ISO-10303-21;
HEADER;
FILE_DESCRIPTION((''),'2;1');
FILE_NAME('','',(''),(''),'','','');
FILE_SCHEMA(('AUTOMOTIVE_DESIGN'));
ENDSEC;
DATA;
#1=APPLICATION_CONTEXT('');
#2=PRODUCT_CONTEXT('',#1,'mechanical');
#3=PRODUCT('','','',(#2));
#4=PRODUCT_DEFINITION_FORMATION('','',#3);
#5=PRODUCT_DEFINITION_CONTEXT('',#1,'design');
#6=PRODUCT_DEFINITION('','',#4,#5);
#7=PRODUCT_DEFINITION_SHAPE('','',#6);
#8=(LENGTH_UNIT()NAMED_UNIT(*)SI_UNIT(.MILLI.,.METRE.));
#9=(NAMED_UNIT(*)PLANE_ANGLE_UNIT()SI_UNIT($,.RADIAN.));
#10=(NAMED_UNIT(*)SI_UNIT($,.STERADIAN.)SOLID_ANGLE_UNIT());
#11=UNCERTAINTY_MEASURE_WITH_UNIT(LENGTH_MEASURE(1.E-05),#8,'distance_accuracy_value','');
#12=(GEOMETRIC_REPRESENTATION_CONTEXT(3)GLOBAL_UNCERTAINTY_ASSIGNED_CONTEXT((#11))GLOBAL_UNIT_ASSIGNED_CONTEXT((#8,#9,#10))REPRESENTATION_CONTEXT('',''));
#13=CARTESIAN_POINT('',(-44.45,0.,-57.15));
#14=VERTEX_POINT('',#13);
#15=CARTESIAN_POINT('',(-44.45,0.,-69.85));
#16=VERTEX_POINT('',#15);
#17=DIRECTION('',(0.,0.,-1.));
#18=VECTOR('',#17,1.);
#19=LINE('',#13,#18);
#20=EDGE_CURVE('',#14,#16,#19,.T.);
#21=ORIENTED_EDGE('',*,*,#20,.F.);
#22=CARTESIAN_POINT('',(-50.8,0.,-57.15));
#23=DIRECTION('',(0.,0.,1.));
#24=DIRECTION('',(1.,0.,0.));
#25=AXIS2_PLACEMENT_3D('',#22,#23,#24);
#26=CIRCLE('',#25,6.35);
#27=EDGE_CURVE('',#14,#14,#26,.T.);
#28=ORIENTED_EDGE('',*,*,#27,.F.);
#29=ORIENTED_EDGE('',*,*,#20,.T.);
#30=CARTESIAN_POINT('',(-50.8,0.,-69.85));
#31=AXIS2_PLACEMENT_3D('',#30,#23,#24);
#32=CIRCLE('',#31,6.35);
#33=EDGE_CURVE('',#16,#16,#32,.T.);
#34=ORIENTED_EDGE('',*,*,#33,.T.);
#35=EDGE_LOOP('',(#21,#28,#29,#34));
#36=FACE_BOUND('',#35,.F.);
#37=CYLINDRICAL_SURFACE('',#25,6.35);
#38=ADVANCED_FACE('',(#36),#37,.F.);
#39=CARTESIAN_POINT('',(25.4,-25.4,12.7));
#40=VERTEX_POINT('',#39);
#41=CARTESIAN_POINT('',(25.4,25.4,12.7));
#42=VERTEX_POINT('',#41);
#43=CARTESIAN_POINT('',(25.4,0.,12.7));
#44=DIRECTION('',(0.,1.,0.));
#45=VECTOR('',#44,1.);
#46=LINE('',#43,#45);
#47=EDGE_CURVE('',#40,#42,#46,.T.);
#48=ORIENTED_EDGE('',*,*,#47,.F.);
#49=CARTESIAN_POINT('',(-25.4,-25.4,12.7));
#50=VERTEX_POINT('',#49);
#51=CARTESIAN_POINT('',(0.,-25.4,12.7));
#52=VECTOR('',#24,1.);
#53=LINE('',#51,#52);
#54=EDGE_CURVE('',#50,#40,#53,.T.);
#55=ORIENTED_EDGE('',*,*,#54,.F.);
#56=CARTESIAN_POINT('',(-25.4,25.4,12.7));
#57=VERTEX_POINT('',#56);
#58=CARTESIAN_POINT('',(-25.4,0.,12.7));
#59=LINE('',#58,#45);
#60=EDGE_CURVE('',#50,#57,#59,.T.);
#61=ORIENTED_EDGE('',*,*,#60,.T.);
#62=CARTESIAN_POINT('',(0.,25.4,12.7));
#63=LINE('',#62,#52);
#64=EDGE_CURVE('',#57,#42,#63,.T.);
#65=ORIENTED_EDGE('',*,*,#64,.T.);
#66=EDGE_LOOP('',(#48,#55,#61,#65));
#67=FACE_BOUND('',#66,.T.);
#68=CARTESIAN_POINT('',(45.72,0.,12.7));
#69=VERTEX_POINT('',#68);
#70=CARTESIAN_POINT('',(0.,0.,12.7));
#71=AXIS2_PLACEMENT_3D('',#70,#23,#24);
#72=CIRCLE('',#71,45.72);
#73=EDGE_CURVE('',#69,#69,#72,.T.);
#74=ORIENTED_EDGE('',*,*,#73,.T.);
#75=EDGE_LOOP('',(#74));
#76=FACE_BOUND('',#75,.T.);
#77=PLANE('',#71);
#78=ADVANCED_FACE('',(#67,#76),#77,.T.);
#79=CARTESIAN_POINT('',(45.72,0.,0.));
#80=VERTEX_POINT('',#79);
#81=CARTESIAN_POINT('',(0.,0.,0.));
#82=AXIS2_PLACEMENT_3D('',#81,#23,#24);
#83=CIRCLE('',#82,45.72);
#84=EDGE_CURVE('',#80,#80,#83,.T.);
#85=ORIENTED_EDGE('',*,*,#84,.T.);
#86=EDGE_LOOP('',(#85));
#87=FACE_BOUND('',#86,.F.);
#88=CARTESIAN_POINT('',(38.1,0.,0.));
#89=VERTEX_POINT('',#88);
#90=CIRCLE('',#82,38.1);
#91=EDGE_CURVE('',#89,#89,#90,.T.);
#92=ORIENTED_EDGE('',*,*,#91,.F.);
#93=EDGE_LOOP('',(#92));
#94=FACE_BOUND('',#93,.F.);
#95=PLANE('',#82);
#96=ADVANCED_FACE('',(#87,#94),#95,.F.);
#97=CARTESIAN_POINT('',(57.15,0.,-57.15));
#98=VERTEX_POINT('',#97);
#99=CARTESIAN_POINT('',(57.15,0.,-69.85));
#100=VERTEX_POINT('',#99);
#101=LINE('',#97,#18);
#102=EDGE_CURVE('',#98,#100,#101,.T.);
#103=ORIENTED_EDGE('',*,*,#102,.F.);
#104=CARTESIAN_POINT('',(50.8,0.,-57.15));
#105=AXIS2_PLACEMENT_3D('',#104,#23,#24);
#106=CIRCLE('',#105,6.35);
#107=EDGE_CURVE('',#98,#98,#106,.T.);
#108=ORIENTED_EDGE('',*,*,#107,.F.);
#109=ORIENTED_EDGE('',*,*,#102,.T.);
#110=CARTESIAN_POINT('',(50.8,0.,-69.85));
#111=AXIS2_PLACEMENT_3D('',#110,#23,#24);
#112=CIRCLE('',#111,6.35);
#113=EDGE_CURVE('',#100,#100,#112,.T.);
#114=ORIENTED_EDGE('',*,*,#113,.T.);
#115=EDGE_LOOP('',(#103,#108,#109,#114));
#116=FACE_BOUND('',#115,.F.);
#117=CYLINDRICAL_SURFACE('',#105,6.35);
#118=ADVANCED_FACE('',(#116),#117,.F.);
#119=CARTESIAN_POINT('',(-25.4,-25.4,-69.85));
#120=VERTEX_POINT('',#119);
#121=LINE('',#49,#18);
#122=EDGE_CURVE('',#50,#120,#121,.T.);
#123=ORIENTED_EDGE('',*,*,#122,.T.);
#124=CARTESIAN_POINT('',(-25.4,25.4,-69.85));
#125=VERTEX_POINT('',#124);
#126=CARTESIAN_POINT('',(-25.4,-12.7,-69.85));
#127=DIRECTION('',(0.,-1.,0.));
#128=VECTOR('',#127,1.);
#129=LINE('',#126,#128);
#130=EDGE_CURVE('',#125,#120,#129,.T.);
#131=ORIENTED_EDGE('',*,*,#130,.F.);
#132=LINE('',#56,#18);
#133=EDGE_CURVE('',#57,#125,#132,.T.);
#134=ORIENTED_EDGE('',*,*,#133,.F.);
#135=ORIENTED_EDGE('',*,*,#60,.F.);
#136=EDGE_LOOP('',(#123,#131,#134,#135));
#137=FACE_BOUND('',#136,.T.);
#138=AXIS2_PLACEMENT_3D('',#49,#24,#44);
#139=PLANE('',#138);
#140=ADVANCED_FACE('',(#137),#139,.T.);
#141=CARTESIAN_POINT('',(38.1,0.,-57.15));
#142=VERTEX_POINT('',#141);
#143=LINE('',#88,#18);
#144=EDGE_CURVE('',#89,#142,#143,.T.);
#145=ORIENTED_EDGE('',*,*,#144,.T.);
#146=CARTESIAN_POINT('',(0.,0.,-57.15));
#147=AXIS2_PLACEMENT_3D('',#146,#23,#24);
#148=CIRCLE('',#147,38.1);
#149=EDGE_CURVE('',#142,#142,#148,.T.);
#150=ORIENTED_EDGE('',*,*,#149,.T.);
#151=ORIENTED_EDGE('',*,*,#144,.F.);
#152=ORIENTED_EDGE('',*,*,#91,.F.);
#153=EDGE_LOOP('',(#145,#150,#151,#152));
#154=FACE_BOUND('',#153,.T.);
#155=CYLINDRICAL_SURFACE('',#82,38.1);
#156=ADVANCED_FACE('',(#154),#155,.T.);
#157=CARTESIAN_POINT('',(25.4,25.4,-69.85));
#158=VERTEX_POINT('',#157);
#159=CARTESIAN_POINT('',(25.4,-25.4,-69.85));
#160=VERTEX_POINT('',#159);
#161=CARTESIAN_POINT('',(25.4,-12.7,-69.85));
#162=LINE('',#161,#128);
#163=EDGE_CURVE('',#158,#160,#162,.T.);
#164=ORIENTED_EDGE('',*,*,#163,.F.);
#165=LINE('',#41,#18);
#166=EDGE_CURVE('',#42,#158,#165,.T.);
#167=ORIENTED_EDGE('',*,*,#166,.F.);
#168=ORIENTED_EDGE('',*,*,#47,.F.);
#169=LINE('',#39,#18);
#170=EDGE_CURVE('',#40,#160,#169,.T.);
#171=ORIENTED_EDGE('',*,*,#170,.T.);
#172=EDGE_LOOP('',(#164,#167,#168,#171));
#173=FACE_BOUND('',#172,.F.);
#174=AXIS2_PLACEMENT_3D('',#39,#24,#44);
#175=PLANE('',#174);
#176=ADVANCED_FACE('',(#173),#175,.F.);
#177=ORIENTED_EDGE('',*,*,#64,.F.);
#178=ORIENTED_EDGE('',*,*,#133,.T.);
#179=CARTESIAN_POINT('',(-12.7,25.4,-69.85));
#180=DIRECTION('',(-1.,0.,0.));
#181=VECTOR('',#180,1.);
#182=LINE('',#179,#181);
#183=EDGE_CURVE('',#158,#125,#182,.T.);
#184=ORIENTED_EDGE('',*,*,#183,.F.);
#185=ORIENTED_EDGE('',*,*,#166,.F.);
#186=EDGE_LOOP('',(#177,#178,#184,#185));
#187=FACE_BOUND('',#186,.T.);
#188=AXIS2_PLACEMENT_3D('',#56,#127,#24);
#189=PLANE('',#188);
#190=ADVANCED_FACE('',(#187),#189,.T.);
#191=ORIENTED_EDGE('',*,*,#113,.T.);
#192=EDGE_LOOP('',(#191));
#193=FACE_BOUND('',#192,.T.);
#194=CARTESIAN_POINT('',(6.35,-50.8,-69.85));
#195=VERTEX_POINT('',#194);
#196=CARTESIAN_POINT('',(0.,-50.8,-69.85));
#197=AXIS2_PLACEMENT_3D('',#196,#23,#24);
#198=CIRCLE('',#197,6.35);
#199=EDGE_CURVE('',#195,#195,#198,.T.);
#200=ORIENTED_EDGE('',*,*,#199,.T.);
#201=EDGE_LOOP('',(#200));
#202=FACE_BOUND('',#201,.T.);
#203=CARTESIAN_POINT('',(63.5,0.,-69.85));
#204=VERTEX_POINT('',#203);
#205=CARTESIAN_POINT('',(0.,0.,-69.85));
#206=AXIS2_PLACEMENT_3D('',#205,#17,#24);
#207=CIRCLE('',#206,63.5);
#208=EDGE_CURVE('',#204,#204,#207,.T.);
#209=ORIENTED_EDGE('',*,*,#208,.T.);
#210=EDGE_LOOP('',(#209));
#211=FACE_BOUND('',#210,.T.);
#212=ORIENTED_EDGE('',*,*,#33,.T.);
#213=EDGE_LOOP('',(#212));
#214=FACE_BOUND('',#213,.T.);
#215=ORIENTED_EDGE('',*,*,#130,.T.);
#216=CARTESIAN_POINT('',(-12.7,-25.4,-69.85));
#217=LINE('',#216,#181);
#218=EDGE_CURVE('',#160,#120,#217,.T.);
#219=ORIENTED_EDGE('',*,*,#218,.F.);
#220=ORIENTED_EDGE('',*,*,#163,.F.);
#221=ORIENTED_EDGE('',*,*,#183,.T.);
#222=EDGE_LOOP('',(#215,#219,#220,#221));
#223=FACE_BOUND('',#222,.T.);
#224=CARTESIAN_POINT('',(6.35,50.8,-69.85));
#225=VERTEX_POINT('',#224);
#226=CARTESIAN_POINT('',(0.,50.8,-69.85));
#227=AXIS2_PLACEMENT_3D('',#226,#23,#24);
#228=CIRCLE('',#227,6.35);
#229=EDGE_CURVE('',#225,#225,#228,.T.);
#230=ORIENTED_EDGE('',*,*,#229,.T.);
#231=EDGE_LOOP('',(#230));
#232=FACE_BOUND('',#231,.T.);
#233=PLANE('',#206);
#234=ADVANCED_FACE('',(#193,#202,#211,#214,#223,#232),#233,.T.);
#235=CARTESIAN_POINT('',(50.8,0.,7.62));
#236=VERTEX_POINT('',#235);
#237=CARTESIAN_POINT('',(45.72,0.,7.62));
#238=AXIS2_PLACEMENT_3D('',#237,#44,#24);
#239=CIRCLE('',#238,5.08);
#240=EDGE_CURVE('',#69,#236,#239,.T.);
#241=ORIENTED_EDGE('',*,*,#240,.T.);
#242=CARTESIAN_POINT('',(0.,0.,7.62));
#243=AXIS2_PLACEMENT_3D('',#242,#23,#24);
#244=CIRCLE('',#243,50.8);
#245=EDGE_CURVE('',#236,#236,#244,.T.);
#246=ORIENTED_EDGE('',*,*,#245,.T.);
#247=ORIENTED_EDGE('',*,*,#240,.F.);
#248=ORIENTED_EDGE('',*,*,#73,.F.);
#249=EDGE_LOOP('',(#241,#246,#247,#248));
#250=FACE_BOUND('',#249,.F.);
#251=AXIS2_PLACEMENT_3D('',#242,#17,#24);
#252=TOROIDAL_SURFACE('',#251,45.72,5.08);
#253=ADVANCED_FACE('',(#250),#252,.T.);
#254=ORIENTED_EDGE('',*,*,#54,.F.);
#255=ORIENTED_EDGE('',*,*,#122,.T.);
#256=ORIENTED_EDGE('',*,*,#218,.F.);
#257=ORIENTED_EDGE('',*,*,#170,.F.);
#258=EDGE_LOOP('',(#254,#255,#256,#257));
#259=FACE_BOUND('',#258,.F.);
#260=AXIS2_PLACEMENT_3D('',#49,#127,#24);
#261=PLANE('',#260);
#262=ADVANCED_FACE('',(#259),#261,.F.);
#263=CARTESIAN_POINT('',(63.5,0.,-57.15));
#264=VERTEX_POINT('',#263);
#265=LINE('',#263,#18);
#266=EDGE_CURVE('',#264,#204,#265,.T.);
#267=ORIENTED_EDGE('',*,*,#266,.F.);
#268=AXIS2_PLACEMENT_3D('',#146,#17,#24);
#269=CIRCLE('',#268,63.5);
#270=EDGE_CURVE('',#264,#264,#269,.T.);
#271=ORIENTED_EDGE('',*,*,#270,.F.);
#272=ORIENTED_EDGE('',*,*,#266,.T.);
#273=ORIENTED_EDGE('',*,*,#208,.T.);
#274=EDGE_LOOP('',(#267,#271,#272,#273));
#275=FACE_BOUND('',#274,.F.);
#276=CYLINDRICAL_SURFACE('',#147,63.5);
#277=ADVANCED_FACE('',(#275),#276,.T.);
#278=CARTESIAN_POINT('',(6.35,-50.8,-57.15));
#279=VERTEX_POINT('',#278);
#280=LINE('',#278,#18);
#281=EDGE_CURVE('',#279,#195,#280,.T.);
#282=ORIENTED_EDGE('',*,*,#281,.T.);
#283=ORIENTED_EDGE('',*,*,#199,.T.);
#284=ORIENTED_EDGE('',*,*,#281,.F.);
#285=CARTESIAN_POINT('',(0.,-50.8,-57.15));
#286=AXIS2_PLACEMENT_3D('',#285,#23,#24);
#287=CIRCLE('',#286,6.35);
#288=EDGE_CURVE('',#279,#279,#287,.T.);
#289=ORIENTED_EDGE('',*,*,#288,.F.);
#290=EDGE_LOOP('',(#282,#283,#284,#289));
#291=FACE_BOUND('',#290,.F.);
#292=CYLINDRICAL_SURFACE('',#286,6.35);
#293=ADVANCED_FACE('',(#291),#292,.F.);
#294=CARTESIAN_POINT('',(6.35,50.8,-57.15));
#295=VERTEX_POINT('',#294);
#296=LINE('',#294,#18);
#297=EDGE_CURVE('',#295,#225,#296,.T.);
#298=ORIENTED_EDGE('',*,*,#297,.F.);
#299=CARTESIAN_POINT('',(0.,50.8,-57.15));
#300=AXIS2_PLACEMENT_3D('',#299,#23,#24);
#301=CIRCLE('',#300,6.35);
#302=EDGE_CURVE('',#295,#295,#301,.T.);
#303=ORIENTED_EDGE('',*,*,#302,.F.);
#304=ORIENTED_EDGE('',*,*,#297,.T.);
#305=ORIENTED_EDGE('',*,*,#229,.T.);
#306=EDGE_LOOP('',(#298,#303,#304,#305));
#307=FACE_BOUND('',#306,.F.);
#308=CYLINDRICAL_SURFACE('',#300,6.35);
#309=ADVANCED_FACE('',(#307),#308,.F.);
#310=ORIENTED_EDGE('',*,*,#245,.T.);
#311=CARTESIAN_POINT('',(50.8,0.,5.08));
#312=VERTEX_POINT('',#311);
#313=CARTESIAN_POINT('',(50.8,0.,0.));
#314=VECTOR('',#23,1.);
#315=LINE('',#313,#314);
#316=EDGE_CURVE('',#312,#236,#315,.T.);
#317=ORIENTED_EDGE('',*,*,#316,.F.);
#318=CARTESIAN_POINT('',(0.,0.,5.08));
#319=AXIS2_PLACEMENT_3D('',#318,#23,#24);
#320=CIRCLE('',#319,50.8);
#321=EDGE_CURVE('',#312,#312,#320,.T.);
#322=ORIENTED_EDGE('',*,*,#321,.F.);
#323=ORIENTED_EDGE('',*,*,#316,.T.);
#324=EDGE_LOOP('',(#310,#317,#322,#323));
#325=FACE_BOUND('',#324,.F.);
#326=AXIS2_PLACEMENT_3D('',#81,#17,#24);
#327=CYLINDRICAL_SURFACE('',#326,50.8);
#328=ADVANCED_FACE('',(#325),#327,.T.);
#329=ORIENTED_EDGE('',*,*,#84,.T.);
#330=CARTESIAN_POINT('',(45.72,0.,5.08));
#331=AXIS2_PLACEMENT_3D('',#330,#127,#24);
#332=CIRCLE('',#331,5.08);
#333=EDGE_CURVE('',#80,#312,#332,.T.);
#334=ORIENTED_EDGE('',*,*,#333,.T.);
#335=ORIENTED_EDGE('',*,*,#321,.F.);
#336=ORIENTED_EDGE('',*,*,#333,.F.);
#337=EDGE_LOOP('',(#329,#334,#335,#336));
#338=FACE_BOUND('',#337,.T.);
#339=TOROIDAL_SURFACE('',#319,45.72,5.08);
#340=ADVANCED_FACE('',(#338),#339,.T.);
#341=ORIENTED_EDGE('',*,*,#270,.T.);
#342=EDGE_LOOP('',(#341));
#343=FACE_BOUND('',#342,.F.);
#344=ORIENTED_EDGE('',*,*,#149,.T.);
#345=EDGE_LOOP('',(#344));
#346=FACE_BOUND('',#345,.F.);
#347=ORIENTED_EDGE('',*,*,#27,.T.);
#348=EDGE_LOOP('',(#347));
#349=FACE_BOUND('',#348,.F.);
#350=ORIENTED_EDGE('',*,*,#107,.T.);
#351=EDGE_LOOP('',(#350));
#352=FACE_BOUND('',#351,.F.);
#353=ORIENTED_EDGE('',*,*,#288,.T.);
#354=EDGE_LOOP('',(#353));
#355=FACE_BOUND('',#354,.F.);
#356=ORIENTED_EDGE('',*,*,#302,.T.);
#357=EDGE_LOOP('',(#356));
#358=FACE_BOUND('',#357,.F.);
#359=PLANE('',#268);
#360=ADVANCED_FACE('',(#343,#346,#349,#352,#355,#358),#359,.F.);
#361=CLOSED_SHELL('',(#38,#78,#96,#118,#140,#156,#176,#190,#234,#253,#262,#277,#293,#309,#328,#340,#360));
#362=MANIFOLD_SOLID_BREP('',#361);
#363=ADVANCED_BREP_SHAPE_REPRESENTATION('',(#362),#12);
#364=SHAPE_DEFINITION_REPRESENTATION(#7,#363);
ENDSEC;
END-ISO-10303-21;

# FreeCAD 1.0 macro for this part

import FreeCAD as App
import Part
import Sketcher

V = App.Vector
Q = App.Units.Quantity


def edges_at(feature, points):
    """Names of the edges that pass closest to the given points."""
    edges = feature.Shape.Edges
    near = lambda p: min(range(len(edges)), key=lambda i: edges[i].distToShape(Part.Vertex(*p))[0])
    return sorted({f"Edge{near(p) + 1}" for p in points})


def add_polygon(sketch, points):
    """Adds a closed chain of lines whose ends are joined by coincident constraints."""
    first, n = sketch.GeometryCount, len(points)
    for a, b in zip(points, points[1:] + points[:1]):
        sketch.addGeometry(Part.LineSegment(App.Vector(*a, 0), App.Vector(*b, 0)), False)
    for i in range(n):
        sketch.addConstraint(Sketcher.Constraint("Coincident", first + i, 2, first + (i + 1) % n, 1))

doc = App.newDocument("Part")
body = doc.addObject("PartDesign::Body", "Body")

sketch1 = doc.addObject("Sketcher::SketchObject", "Sketch")
body.addObject(sketch1)
sketch1.AttachmentSupport = (doc.XY_Plane, [""])
sketch1.MapMode = "FlatFace"
sketch1.addGeometry(Part.Circle(V(0, 0, 0), V(0, 0, 1), 51), False)
sketch1.addConstraint([
    Sketcher.Constraint("Coincident", 0, 3, -1, 1),
    Sketcher.Constraint("Diameter", 0, Q("4 in")),
])
pad1 = doc.addObject("PartDesign::Pad", "Pad")
body.addObject(pad1)
pad1.Profile = sketch1
pad1.Length = Q("0.5 in")

sketch2 = doc.addObject("Sketcher::SketchObject", "Sketch001")
body.addObject(sketch2)
sketch2.AttachmentSupport = (doc.XY_Plane, [""])
sketch2.MapMode = "FlatFace"
sketch2.addGeometry(Part.Circle(V(0, 0, 0), V(0, 0, 1), 38), False)
sketch2.addConstraint([
    Sketcher.Constraint("Coincident", 0, 3, -1, 1),
    Sketcher.Constraint("Diameter", 0, Q("3 in")),
])
pad2 = doc.addObject("PartDesign::Pad", "Pad001")
body.addObject(pad2)
pad2.Profile = sketch2
pad2.Length = Q("2.25 in")
pad2.Reversed = True

sketch3 = doc.addObject("Sketcher::SketchObject", "Sketch002")
body.addObject(sketch3)
sketch3.AttachmentSupport = (doc.XY_Plane, [""])
sketch3.MapMode = "FlatFace"
sketch3.AttachmentOffset = App.Placement(V(0, 0, -2.25 * 25.4), App.Rotation())
sketch3.addGeometry(Part.Circle(V(0, 0, 0), V(0, 0, 1), 64), False)
sketch3.addConstraint([
    Sketcher.Constraint("Coincident", 0, 3, -1, 1),
    Sketcher.Constraint("Diameter", 0, Q("5 in")),
])
pad3 = doc.addObject("PartDesign::Pad", "Pad002")
body.addObject(pad3)
pad3.Profile = sketch3
pad3.Length = Q("0.5 in")
pad3.Reversed = True

sketch4 = doc.addObject("Sketcher::SketchObject", "Sketch003")
body.addObject(sketch4)
sketch4.AttachmentSupport = (doc.XY_Plane, [""])
sketch4.MapMode = "FlatFace"
sketch4.AttachmentOffset = App.Placement(V(0, 0, 0.5 * 25.4), App.Rotation())
add_polygon(sketch4, [(-25, 25), (-25, -25), (25, -25), (25, 25)])
sketch4.addConstraint([
    Sketcher.Constraint("Vertical", 0),
    Sketcher.Constraint("Horizontal", 1),
    Sketcher.Constraint("Vertical", 2),
    Sketcher.Constraint("Horizontal", 3),
    Sketcher.Constraint("Symmetric", 0, 2, 2, 2, -1, 1),
    Sketcher.Constraint("Equal", 3, 0),
    Sketcher.Constraint("DistanceX", 1, 1, 1, 2, Q("2 in")),
])
pocket1 = doc.addObject("PartDesign::Pocket", "Pocket")
body.addObject(pocket1)
pocket1.Profile = sketch4
pocket1.Length = Q("4.44 in")

sketch5 = doc.addObject("Sketcher::SketchObject", "Sketch004")
body.addObject(sketch5)
sketch5.AttachmentSupport = (doc.XY_Plane, [""])
sketch5.MapMode = "FlatFace"
sketch5.AttachmentOffset = App.Placement(V(0, 0, -2.25 * 25.4), App.Rotation())
sketch5.addGeometry([
    Part.Circle(V(0, -51, 0), V(0, 0, 1), 6),
    Part.Circle(V(51, 0, 0), V(0, 0, 1), 6),
    Part.Circle(V(0, 51, 0), V(0, 0, 1), 6),
    Part.Circle(V(-51, 0, 0), V(0, 0, 1), 6),
], False)
sketch5.addConstraint([
    Sketcher.Constraint("Equal", 0, 1),
    Sketcher.Constraint("Equal", 1, 2),
    Sketcher.Constraint("Equal", 2, 3),
    Sketcher.Constraint("Symmetric", 0, 3, 2, 3, -1, 1),
    Sketcher.Constraint("Symmetric", 1, 3, 3, 3, -1, 1),
    Sketcher.Constraint("PointOnObject", 0, 3, -2),
    Sketcher.Constraint("PointOnObject", 1, 3, -1),
    Sketcher.Constraint("Diameter", 0, Q("0.5 in")),
    Sketcher.Constraint("DistanceY", 0, 3, -1, 1, Q("2 in")),
    Sketcher.Constraint("DistanceX", -1, 1, 1, 3, Q("2 in")),
])
pocket2 = doc.addObject("PartDesign::Pocket", "Pocket001")
body.addObject(pocket2)
pocket2.Profile = sketch5
pocket2.Length = Q("1 in")
doc.recompute()

fillet = doc.addObject("PartDesign::Fillet", "Fillet")
body.addObject(fillet)
fillet.Base = (pocket2, edges_at(pocket2, [(50.8, 0, 6.35), (-50.8, 0, 0), (-50.8, 0, 12.7)]))
fillet.Radius = Q("0.2 in")

doc.recompute()
